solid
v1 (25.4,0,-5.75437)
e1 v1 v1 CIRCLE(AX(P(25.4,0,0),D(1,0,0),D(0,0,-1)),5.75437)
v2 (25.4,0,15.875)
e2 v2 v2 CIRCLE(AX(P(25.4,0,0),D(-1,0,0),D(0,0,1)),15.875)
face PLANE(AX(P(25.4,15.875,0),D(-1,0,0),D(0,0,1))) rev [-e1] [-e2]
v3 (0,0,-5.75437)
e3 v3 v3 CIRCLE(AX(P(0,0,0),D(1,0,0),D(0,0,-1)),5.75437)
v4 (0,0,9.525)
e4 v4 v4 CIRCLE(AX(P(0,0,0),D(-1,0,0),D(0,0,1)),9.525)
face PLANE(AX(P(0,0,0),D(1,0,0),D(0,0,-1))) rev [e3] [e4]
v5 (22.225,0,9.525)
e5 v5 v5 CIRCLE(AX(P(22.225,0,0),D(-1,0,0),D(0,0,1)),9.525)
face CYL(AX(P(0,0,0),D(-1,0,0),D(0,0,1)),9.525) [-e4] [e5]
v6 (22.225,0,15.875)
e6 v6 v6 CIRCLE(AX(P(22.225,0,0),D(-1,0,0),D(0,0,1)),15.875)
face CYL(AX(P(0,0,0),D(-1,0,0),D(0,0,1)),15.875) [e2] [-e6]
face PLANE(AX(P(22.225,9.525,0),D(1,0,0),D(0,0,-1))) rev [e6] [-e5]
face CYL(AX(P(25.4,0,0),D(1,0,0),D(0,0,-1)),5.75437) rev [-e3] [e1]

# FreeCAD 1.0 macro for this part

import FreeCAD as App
import Part
import Sketcher
from FreeCAD import Vector
Q = App.Units.Quantity


def add_polygon(sketch, points):
    """Adds a closed chain of lines whose ends are joined by coincident constraints."""
    first, n = sketch.GeometryCount, len(points)
    for a, b in zip(points, points[1:] + points[:1]):
        sketch.addGeometry(Part.LineSegment(App.Vector(*a, 0), App.Vector(*b, 0)), False)
    for i in range(n):
        sketch.addConstraint(Sketcher.Constraint("Coincident", first + i, 2, first + (i + 1) % n, 1))

doc = App.newDocument("Part")
body = doc.addObject("PartDesign::Body", "Body")

# Sketch on XY plane
sketch1 = body.newObject("Sketcher::SketchObject", "Sketch")
sketch1.AttachmentSupport = (doc.getObject("XY_Plane"), [""])
sketch1.MapMode = "FlatFace"
add_polygon(sketch1, [(22.2, 9.5), (0, 9.5), (0, 0), (25.4, 0), (25.4, 15.9), (22.2, 15.9)])  # lines 0-5
sketch1.addConstraint(Sketcher.Constraint("Horizontal", 0))
sketch1.addConstraint(Sketcher.Constraint("Vertical", 1))
sketch1.addConstraint(Sketcher.Constraint("Horizontal", 2))
sketch1.addConstraint(Sketcher.Constraint("Vertical", 3))
sketch1.addConstraint(Sketcher.Constraint("Horizontal", 4))
sketch1.addConstraint(Sketcher.Constraint("Vertical", 5))
sketch1.addConstraint(Sketcher.Constraint("Coincident", 1, 2, -1, 1))
sketch1.addConstraint(Sketcher.Constraint("DistanceX", 2, 1, 2, 2, Q("1 in")))
sketch1.addConstraint(Sketcher.Constraint("DistanceY", 5, 2, 5, 1, Q("0.25 in")))
sketch1.addConstraint(Sketcher.Constraint("DistanceX", 0, 2, 0, 1, Q("0.875 in")))
sketch1.addConstraint(Sketcher.Constraint("DistanceY", 1, 2, 1, 1, Q("0.375 in")))
revolution = body.newObject("PartDesign::Revolution", "Revolution")
revolution.Profile = sketch1
revolution.ReferenceAxis = (sketch1, ["H_Axis"])
revolution.Angle = 360

# Sketch on YZ plane
sketch2 = body.newObject("Sketcher::SketchObject", "Sketch001")
sketch2.AttachmentSupport = (doc.getObject("YZ_Plane"), [""])
sketch2.MapMode = "FlatFace"
sketch2.AttachmentOffset = App.Placement(Vector(0, 0, 1 * 25.4), App.Rotation())
sketch2.addGeometry(Part.Circle(Vector(0, 0, 0), Vector(0, 0, 1), 6), False)
sketch2.addConstraint(Sketcher.Constraint("Coincident", 0, 3, -1, 1))
sketch2.addConstraint(Sketcher.Constraint("Diameter", 0, Q("0.4531 in")))
doc.recompute()
hole = body.newObject("PartDesign::Hole", "Hole")
hole.Profile = sketch2
hole.ThreadType = "None"
hole.Diameter = Q("0.4531 in")
hole.DepthType = "ThroughAll"

doc.recompute()
